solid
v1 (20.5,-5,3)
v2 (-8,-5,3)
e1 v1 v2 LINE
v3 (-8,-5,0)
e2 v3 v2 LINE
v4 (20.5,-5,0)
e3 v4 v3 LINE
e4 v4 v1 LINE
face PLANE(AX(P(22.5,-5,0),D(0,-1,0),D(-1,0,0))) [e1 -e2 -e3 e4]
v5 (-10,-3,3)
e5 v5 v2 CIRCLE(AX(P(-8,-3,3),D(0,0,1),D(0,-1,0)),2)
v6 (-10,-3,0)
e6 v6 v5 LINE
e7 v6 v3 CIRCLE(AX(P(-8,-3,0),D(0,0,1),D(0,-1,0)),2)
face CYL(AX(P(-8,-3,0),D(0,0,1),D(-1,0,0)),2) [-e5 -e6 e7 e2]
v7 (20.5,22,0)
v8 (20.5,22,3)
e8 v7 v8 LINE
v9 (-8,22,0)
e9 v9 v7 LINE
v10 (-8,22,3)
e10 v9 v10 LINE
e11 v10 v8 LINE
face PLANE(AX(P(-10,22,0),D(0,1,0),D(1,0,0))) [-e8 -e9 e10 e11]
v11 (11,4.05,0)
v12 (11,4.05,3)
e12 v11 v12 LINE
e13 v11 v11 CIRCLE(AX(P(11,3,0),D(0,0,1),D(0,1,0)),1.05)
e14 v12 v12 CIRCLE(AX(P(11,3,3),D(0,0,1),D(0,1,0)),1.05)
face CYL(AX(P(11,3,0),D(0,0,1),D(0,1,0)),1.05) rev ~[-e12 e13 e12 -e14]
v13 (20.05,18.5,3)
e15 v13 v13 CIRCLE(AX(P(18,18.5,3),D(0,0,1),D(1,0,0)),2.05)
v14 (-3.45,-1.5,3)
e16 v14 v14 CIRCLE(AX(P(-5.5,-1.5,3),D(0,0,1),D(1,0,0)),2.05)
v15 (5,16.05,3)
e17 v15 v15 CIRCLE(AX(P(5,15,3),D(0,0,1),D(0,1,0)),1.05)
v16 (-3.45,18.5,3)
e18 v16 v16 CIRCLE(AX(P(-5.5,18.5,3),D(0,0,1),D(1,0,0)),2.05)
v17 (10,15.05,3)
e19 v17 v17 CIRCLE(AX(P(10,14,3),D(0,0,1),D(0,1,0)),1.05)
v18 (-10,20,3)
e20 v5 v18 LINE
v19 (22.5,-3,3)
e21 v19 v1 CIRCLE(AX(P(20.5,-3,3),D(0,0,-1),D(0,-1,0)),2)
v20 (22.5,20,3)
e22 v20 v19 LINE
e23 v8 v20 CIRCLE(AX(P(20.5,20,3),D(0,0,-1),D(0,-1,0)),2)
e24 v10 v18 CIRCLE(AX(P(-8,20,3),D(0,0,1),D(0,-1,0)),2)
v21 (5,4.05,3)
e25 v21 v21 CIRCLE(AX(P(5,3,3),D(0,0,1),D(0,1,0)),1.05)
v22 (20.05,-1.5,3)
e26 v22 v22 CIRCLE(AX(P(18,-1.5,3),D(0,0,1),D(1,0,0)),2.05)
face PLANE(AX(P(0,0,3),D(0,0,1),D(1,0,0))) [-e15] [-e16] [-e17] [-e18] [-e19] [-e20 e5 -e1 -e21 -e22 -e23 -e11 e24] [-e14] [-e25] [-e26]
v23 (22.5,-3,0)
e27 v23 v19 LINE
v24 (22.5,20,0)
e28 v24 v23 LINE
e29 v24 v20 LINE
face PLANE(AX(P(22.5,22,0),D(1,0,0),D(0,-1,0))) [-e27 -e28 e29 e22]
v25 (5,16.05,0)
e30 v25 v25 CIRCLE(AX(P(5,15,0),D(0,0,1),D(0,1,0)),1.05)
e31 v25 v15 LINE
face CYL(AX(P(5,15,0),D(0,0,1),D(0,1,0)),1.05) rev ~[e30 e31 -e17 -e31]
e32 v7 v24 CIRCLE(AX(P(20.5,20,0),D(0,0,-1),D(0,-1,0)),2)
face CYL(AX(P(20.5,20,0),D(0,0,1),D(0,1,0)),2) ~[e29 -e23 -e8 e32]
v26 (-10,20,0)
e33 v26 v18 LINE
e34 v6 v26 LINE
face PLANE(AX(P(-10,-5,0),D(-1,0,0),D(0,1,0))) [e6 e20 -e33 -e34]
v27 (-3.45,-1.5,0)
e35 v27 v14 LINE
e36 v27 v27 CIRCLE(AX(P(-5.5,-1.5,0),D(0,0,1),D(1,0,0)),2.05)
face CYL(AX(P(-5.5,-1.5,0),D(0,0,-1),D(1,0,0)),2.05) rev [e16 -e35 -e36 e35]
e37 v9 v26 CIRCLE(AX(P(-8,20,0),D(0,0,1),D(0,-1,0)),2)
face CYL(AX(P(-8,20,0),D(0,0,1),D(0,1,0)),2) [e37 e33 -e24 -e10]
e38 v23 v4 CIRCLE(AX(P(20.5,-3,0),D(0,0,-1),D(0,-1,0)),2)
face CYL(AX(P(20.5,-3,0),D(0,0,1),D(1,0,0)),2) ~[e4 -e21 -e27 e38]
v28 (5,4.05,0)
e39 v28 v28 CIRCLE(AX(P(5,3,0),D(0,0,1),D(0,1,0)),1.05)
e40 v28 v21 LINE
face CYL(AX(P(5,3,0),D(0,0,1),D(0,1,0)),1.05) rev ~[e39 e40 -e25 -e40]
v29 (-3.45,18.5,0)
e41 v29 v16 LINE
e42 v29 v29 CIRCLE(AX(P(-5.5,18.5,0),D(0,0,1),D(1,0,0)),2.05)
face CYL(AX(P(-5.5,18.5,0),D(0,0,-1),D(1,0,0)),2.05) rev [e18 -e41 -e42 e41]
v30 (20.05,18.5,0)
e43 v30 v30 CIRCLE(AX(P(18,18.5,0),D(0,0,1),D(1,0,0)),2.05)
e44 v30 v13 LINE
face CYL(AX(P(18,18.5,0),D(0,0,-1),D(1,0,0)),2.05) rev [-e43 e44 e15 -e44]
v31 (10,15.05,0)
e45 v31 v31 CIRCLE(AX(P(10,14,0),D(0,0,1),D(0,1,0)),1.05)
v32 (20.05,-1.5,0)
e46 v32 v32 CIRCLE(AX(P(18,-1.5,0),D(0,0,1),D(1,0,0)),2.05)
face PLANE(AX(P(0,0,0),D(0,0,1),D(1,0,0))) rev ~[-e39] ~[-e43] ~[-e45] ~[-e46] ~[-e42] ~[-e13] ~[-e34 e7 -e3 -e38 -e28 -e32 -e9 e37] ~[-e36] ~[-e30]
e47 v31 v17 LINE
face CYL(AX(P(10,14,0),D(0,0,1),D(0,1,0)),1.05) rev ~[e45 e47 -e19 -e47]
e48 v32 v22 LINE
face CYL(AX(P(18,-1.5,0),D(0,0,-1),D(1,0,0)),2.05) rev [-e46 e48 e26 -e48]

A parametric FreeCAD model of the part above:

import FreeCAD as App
import Part
import Sketcher
from FreeCAD import Vector


def edges_at(feature, points):
    """Names of the edges that pass closest to the given points."""
    edges = feature.Shape.Edges
    near = lambda p: min(range(len(edges)), key=lambda i: edges[i].distToShape(Part.Vertex(*p))[0])
    return sorted({f"Edge{near(p) + 1}" for p in points})

doc = App.newDocument("Part")
params = doc.addObject("Spreadsheet::Sheet", "Params")
for row, (alias, value) in enumerate([
    ("sketch1_diameter", "4.1 mm"),
    ("sketch1_height", "27 mm"),
    ("sketch1_width", "32.5 mm"),
    ("pad1_length", "3 mm"),
    ("sketch2_diameter", "2.1 mm"),
    ("hole_diameter", "2.1 mm"),
    ("fillet_radius", "2 mm"),
], start=1):
    params.set(f"A{row}", alias)
    params.set(f"B{row}", "=" + value)
    params.setAlias(f"B{row}", alias)

body = doc.addObject("PartDesign::Body", "Body")

# Sketch on XY plane
sketch1 = body.newObject("Sketcher::SketchObject", "Sketch")
sketch1.AttachmentSupport = (doc.getObject("XY_Plane"), [""])
sketch1.MapMode = "FlatFace"
sketch1.addGeometry([
    Part.LineSegment(Vector(22.5, 22, 0), Vector(-10, 22, 0)),  # 0
    Part.LineSegment(Vector(-10, 22, 0), Vector(-10, -5, 0)),  # 1
    Part.LineSegment(Vector(-10, -5, 0), Vector(22.5, -5, 0)),  # 2
    Part.LineSegment(Vector(22.5, -5, 0), Vector(22.5, 22, 0)),  # 3
    Part.Circle(Vector(-5.5, -1.5, 0), Vector(0, 0, 1), 2),  # 4
    Part.Circle(Vector(18, -1.5, 0), Vector(0, 0, 1), 2),  # 5
    Part.Circle(Vector(-5.5, 18.5, 0), Vector(0, 0, 1), 2),  # 6
    Part.Circle(Vector(18, 18.5, 0), Vector(0, 0, 1), 2),  # 7
], False)
sketch1.addConstraint([
    Sketcher.Constraint("Coincident", 0, 2, 1, 1),
    Sketcher.Constraint("Coincident", 1, 2, 2, 1),
    Sketcher.Constraint("Coincident", 2, 2, 3, 1),
    Sketcher.Constraint("Coincident", 3, 2, 0, 1),
    Sketcher.Constraint("Horizontal", 0),
    Sketcher.Constraint("Vertical", 1),
    Sketcher.Constraint("Horizontal", 2),
    Sketcher.Constraint("Vertical", 3),
    Sketcher.Constraint("Equal", 4, 5),
    Sketcher.Constraint("Equal", 5, 6),
    Sketcher.Constraint("Equal", 6, 7),
    Sketcher.Constraint("Horizontal", 4, 3, 5, 3),
    Sketcher.Constraint("Horizontal", 6, 3, 7, 3),
    Sketcher.Constraint("Vertical", 4, 3, 6, 3),
    Sketcher.Constraint("Vertical", 5, 3, 7, 3),
    Sketcher.Constraint("Diameter", 4, 4.1),
    Sketcher.Constraint("DistanceY", 1, 2, 1, 1, 27.0),
    Sketcher.Constraint("DistanceX", 0, 2, 0, 1, 32.5),
    Sketcher.Constraint("DistanceX", 0, 2, -1, 1, 10.0),
    Sketcher.Constraint("DistanceY", 1, 2, -1, 1, 5.0),
    Sketcher.Constraint("DistanceX", 0, 2, 6, 3, 4.5),
    Sketcher.Constraint("DistanceY", 6, 3, 0, 2, 3.5),
    Sketcher.Constraint("DistanceY", 1, 2, 4, 3, 3.5),
    Sketcher.Constraint("DistanceX", 5, 3, 2, 2, 4.5),
])
sketch1.setExpression("Constraints[15]", "Params.sketch1_diameter")
sketch1.setExpression("Constraints[16]", "Params.sketch1_height")
sketch1.setExpression("Constraints[17]", "Params.sketch1_width")
pad1 = body.newObject("PartDesign::Pad", "Pad")
pad1.Profile = sketch1
pad1.setExpression("Length", "Params.pad1_length")

# Sketch on XY plane
sketch2 = body.newObject("Sketcher::SketchObject", "Sketch001")
sketch2.AttachmentSupport = (doc.getObject("XY_Plane"), [""])
sketch2.MapMode = "FlatFace"
sketch2.addGeometry([
    Part.Circle(Vector(10, 14, 0), Vector(0, 0, 1), 1.1),
    Part.Circle(Vector(5, 15, 0), Vector(0, 0, 1), 1.1),
    Part.Circle(Vector(5, 3, 0), Vector(0, 0, 1), 1.1),
    Part.Circle(Vector(11, 3, 0), Vector(0, 0, 1), 1.1),
], False)
sketch2.addConstraint([
    Sketcher.Constraint("Equal", 0, 1),
    Sketcher.Constraint("Equal", 1, 2),
    Sketcher.Constraint("Equal", 2, 3),
    Sketcher.Constraint("Horizontal", 2, 3, 3, 3),
    Sketcher.Constraint("Vertical", 1, 3, 2, 3),
    Sketcher.Constraint("Diameter", 0, 2.1),
    Sketcher.Constraint("DistanceX", -1, 1, 0, 3, 10.0),
    Sketcher.Constraint("DistanceY", -1, 1, 0, 3, 14.0),
    Sketcher.Constraint("DistanceX", -1, 1, 1, 3, 5.0),
    Sketcher.Constraint("DistanceY", -1, 1, 1, 3, 15.0),
    Sketcher.Constraint("DistanceY", -1, 1, 2, 3, 3.0),
    Sketcher.Constraint("DistanceX", -1, 1, 3, 3, 11.0),
])
sketch2.setExpression("Constraints[5]", "Params.sketch2_diameter")
doc.recompute()
hole = body.newObject("PartDesign::Hole", "Hole")
hole.Profile = sketch2
hole.ThreadType = "None"
hole.setExpression("Diameter", "Params.hole_diameter")
hole.DepthType = "ThroughAll"
hole.Reversed = True
doc.recompute()

fillet = body.newObject("PartDesign::Fillet", "Fillet")
fillet.Base = (hole, edges_at(hole, [
    (-10, 22, 1.5),
    (22.5, 22, 1.5),
    (22.5, -5, 1.5),
    (-10, -5, 1.5),
]))
fillet.setExpression("Radius", "Params.fillet_radius")

doc.recompute()
